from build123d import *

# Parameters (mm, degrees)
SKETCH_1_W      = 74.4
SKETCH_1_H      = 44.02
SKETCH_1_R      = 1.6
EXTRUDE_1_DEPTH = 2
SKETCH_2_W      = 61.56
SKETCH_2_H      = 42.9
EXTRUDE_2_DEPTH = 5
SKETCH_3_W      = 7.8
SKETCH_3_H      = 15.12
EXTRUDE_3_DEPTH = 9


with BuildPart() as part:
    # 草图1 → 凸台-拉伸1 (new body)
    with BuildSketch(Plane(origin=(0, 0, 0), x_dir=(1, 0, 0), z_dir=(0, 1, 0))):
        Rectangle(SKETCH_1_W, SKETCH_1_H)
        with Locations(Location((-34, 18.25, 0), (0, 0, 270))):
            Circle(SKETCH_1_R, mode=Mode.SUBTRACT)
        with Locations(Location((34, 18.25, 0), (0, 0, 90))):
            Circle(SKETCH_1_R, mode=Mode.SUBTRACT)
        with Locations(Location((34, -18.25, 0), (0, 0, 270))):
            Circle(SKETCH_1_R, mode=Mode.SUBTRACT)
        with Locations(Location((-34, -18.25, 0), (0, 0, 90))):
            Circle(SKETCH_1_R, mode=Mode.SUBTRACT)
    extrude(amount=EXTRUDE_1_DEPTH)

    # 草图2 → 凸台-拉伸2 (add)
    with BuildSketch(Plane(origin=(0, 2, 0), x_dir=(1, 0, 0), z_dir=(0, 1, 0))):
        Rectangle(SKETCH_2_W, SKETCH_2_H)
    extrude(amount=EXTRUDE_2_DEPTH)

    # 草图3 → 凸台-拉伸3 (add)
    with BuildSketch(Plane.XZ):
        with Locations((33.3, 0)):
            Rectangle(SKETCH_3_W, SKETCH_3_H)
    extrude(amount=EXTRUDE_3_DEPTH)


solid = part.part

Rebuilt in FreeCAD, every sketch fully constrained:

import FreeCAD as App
import Part
import Sketcher

V = App.Vector
Q = App.Units.Quantity


def add_polygon(sketch, points):
    """Adds a closed chain of lines whose ends are joined by coincident constraints."""
    first, n = sketch.GeometryCount, len(points)
    for a, b in zip(points, points[1:] + points[:1]):
        sketch.addGeometry(Part.LineSegment(App.Vector(*a, 0), App.Vector(*b, 0)), False)
    for i in range(n):
        sketch.addConstraint(Sketcher.Constraint("Coincident", first + i, 2, first + (i + 1) % n, 1))

doc = App.newDocument("Part")
body = doc.addObject("PartDesign::Body", "Body")

# Sketch on XZ plane
sketch1 = body.newObject("Sketcher::SketchObject", "Sketch")
sketch1.AttachmentSupport = (doc.getObject("XZ_Plane"), [""])
sketch1.MapMode = "FlatFace"
add_polygon(sketch1, [(-37.2, -22), (-37.2, 22), (37.2, 22), (37.2, -22)])  # lines 0-3
sketch1.addGeometry(Part.Circle(V(-34, 18.2, 0), V(0, 0, 1), 1.6), False)  # 4
sketch1.addGeometry(Part.Circle(V(34, 18.2, 0), V(0, 0, 1), 1.6), False)  # 5
sketch1.addGeometry(Part.Circle(V(-34, -18.2, 0), V(0, 0, 1), 1.6), False)  # 6
sketch1.addGeometry(Part.Circle(V(34, -18.2, 0), V(0, 0, 1), 1.6), False)  # 7
sketch1.addConstraint([
    Sketcher.Constraint("Vertical", 0),
    Sketcher.Constraint("Horizontal", 1),
    Sketcher.Constraint("Vertical", 2),
    Sketcher.Constraint("Horizontal", 3),
    Sketcher.Constraint("Equal", 4, 5),
    Sketcher.Constraint("Equal", 5, 6),
    Sketcher.Constraint("Equal", 6, 7),
    Sketcher.Constraint("Symmetric", 5, 3, 6, 3, -1, 1),
    Sketcher.Constraint("Symmetric", 4, 3, 7, 3, -1, 1),
    Sketcher.Constraint("Symmetric", 0, 2, 2, 2, -1, 1),
    Sketcher.Constraint("Symmetric", 4, 3, 5, 3, -2),
    Sketcher.Constraint("Diameter", 4, Q("3.2 mm")),
    Sketcher.Constraint("DistanceX", 1, 1, 1, 2, Q("74.4 mm")),
    Sketcher.Constraint("DistanceX", 4, 3, -1, 1, Q("34 mm")),
    Sketcher.Constraint("DistanceY", 0, 1, 0, 2, Q("44.02 mm")),
    Sketcher.Constraint("DistanceY", 6, 3, 4, 3, Q("36.5 mm")),
])
pad1 = body.newObject("PartDesign::Pad", "Pad")
pad1.Profile = sketch1
pad1.Length = 2
pad1.Reversed = True

# Sketch on XZ plane
sketch2 = body.newObject("Sketcher::SketchObject", "Sketch001")
sketch2.AttachmentSupport = (doc.getObject("XZ_Plane"), [""])
sketch2.MapMode = "FlatFace"
sketch2.AttachmentOffset = App.Placement(V(0, 0, -2), App.Rotation())
add_polygon(sketch2, [(-31, -21), (-31, 21), (31, 21), (31, -21)])  # lines 0-3
sketch2.addConstraint([
    Sketcher.Constraint("Vertical", 0),
    Sketcher.Constraint("Horizontal", 1),
    Sketcher.Constraint("Vertical", 2),
    Sketcher.Constraint("Horizontal", 3),
    Sketcher.Constraint("Symmetric", 0, 2, 2, 2, -1, 1),
    Sketcher.Constraint("DistanceY", 0, 1, 0, 2, Q("42.9 mm")),
    Sketcher.Constraint("DistanceX", 1, 1, 1, 2, Q("61.56 mm")),
])
pad2 = body.newObject("PartDesign::Pad", "Pad001")
pad2.Profile = sketch2
pad2.Length = 5
pad2.Reversed = True

# Sketch on XZ plane
sketch3 = body.newObject("Sketcher::SketchObject", "Sketch002")
sketch3.AttachmentSupport = (doc.getObject("XZ_Plane"), [""])
sketch3.MapMode = "FlatFace"
add_polygon(sketch3, [(29, 8), (29, -8), (37, -8), (37, 8)])  # lines 0-3
sketch3.addConstraint([
    Sketcher.Constraint("Vertical", 0),
    Sketcher.Constraint("Horizontal", 1),
    Sketcher.Constraint("Vertical", 2),
    Sketcher.Constraint("Horizontal", 3),
    Sketcher.Constraint("DistanceX", 1, 1, 1, 2, Q("7.8 mm")),
    Sketcher.Constraint("DistanceY", 0, 2, 0, 1, Q("15.12 mm")),
    Sketcher.Constraint("DistanceX", -1, 1, 0, 2, Q("29.4 mm")),
    Sketcher.Constraint("DistanceY", 0, 2, -1, 1, Q("7.56 mm")),
])
pad3 = body.newObject("PartDesign::Pad", "Pad002")
pad3.Profile = sketch3
pad3.Length = 9

doc.recompute()
